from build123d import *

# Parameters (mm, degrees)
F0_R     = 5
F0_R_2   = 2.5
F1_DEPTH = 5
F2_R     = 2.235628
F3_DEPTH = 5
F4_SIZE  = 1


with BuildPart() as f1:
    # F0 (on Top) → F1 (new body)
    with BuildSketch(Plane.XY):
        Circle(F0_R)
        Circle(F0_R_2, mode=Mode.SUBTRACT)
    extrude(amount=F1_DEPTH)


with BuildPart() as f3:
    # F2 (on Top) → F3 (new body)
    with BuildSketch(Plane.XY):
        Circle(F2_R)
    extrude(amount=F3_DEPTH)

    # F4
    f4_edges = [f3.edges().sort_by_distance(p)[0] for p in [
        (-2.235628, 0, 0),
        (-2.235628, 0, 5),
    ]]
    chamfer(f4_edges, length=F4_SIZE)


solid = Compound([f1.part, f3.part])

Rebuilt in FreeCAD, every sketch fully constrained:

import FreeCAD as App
import Part
import Sketcher
from FreeCAD import Vector
Q = App.Units.Quantity


def edges_at(feature, points):
    """Names of the edges that pass closest to the given points."""
    edges = feature.Shape.Edges
    near = lambda p: min(range(len(edges)), key=lambda i: edges[i].distToShape(Part.Vertex(*p))[0])
    return sorted({f"Edge{near(p) + 1}" for p in points})

doc = App.newDocument("Part")
params = doc.addObject("Spreadsheet::Sheet", "Params")
for row, (alias, value) in enumerate([
    ("sketch1_diameter", "10 mm"),
    ("sketch1_diameter2", "5 mm"),
    ("pad1_length", "5 mm"),
    ("pad2_length", "5 mm"),
    ("chamfer_size", "1 mm"),
], start=1):
    params.set(f"A{row}", alias)
    params.set(f"B{row}", "=" + value)
    params.setAlias(f"B{row}", alias)

body = doc.addObject("PartDesign::Body", "Body")

# Sketch on XY plane
sketch1 = body.newObject("Sketcher::SketchObject", "Sketch")
sketch1.AttachmentSupport = (doc.getObject("XY_Plane"), [""])
sketch1.MapMode = "FlatFace"
sketch1.addGeometry(Part.Circle(Vector(0, 0, 0), Vector(0, 0, 1), 5), False)
sketch1.addGeometry(Part.Circle(Vector(0, 0, 0), Vector(0, 0, 1), 2.5), False)
sketch1.addConstraint(Sketcher.Constraint("Coincident", 0, 3, -1, 1))
sketch1.addConstraint(Sketcher.Constraint("Coincident", 1, 3, -1, 1))
sketch1.addConstraint(Sketcher.Constraint("Diameter", 0, Q("10 mm")))
sketch1.addConstraint(Sketcher.Constraint("Diameter", 1, Q("5 mm")))
sketch1.setExpression("Constraints[2]", "Params.sketch1_diameter")
sketch1.setExpression("Constraints[3]", "Params.sketch1_diameter2")
pad1 = body.newObject("PartDesign::Pad", "Pad")
pad1.Profile = sketch1
pad1.setExpression("Length", "Params.pad1_length")
body2 = doc.addObject("PartDesign::Body", "Body001")

# Sketch on XY plane
sketch2 = body2.newObject("Sketcher::SketchObject", "Sketch001")
sketch2.AttachmentSupport = (doc.getObject("XY_Plane001"), [""])
sketch2.MapMode = "FlatFace"
sketch2.addGeometry(Part.Circle(Vector(0, 0, 0), Vector(0, 0, 1), 2.2), False)
sketch2.addConstraint(Sketcher.Constraint("Coincident", 0, 3, -1, 1))
sketch2.addConstraint(Sketcher.Constraint("Diameter", 0, Q("4.471256 mm")))
pad2 = body2.newObject("PartDesign::Pad", "Pad001")
pad2.Profile = sketch2
pad2.setExpression("Length", "Params.pad2_length")
doc.recompute()

chamfer = body2.newObject("PartDesign::Chamfer", "Chamfer")
chamfer.Base = (pad2, edges_at(pad2, [(-2.236, 0, 0), (-2.236, 0, 5)]))
chamfer.setExpression("Size", "Params.chamfer_size")

doc.recompute()
